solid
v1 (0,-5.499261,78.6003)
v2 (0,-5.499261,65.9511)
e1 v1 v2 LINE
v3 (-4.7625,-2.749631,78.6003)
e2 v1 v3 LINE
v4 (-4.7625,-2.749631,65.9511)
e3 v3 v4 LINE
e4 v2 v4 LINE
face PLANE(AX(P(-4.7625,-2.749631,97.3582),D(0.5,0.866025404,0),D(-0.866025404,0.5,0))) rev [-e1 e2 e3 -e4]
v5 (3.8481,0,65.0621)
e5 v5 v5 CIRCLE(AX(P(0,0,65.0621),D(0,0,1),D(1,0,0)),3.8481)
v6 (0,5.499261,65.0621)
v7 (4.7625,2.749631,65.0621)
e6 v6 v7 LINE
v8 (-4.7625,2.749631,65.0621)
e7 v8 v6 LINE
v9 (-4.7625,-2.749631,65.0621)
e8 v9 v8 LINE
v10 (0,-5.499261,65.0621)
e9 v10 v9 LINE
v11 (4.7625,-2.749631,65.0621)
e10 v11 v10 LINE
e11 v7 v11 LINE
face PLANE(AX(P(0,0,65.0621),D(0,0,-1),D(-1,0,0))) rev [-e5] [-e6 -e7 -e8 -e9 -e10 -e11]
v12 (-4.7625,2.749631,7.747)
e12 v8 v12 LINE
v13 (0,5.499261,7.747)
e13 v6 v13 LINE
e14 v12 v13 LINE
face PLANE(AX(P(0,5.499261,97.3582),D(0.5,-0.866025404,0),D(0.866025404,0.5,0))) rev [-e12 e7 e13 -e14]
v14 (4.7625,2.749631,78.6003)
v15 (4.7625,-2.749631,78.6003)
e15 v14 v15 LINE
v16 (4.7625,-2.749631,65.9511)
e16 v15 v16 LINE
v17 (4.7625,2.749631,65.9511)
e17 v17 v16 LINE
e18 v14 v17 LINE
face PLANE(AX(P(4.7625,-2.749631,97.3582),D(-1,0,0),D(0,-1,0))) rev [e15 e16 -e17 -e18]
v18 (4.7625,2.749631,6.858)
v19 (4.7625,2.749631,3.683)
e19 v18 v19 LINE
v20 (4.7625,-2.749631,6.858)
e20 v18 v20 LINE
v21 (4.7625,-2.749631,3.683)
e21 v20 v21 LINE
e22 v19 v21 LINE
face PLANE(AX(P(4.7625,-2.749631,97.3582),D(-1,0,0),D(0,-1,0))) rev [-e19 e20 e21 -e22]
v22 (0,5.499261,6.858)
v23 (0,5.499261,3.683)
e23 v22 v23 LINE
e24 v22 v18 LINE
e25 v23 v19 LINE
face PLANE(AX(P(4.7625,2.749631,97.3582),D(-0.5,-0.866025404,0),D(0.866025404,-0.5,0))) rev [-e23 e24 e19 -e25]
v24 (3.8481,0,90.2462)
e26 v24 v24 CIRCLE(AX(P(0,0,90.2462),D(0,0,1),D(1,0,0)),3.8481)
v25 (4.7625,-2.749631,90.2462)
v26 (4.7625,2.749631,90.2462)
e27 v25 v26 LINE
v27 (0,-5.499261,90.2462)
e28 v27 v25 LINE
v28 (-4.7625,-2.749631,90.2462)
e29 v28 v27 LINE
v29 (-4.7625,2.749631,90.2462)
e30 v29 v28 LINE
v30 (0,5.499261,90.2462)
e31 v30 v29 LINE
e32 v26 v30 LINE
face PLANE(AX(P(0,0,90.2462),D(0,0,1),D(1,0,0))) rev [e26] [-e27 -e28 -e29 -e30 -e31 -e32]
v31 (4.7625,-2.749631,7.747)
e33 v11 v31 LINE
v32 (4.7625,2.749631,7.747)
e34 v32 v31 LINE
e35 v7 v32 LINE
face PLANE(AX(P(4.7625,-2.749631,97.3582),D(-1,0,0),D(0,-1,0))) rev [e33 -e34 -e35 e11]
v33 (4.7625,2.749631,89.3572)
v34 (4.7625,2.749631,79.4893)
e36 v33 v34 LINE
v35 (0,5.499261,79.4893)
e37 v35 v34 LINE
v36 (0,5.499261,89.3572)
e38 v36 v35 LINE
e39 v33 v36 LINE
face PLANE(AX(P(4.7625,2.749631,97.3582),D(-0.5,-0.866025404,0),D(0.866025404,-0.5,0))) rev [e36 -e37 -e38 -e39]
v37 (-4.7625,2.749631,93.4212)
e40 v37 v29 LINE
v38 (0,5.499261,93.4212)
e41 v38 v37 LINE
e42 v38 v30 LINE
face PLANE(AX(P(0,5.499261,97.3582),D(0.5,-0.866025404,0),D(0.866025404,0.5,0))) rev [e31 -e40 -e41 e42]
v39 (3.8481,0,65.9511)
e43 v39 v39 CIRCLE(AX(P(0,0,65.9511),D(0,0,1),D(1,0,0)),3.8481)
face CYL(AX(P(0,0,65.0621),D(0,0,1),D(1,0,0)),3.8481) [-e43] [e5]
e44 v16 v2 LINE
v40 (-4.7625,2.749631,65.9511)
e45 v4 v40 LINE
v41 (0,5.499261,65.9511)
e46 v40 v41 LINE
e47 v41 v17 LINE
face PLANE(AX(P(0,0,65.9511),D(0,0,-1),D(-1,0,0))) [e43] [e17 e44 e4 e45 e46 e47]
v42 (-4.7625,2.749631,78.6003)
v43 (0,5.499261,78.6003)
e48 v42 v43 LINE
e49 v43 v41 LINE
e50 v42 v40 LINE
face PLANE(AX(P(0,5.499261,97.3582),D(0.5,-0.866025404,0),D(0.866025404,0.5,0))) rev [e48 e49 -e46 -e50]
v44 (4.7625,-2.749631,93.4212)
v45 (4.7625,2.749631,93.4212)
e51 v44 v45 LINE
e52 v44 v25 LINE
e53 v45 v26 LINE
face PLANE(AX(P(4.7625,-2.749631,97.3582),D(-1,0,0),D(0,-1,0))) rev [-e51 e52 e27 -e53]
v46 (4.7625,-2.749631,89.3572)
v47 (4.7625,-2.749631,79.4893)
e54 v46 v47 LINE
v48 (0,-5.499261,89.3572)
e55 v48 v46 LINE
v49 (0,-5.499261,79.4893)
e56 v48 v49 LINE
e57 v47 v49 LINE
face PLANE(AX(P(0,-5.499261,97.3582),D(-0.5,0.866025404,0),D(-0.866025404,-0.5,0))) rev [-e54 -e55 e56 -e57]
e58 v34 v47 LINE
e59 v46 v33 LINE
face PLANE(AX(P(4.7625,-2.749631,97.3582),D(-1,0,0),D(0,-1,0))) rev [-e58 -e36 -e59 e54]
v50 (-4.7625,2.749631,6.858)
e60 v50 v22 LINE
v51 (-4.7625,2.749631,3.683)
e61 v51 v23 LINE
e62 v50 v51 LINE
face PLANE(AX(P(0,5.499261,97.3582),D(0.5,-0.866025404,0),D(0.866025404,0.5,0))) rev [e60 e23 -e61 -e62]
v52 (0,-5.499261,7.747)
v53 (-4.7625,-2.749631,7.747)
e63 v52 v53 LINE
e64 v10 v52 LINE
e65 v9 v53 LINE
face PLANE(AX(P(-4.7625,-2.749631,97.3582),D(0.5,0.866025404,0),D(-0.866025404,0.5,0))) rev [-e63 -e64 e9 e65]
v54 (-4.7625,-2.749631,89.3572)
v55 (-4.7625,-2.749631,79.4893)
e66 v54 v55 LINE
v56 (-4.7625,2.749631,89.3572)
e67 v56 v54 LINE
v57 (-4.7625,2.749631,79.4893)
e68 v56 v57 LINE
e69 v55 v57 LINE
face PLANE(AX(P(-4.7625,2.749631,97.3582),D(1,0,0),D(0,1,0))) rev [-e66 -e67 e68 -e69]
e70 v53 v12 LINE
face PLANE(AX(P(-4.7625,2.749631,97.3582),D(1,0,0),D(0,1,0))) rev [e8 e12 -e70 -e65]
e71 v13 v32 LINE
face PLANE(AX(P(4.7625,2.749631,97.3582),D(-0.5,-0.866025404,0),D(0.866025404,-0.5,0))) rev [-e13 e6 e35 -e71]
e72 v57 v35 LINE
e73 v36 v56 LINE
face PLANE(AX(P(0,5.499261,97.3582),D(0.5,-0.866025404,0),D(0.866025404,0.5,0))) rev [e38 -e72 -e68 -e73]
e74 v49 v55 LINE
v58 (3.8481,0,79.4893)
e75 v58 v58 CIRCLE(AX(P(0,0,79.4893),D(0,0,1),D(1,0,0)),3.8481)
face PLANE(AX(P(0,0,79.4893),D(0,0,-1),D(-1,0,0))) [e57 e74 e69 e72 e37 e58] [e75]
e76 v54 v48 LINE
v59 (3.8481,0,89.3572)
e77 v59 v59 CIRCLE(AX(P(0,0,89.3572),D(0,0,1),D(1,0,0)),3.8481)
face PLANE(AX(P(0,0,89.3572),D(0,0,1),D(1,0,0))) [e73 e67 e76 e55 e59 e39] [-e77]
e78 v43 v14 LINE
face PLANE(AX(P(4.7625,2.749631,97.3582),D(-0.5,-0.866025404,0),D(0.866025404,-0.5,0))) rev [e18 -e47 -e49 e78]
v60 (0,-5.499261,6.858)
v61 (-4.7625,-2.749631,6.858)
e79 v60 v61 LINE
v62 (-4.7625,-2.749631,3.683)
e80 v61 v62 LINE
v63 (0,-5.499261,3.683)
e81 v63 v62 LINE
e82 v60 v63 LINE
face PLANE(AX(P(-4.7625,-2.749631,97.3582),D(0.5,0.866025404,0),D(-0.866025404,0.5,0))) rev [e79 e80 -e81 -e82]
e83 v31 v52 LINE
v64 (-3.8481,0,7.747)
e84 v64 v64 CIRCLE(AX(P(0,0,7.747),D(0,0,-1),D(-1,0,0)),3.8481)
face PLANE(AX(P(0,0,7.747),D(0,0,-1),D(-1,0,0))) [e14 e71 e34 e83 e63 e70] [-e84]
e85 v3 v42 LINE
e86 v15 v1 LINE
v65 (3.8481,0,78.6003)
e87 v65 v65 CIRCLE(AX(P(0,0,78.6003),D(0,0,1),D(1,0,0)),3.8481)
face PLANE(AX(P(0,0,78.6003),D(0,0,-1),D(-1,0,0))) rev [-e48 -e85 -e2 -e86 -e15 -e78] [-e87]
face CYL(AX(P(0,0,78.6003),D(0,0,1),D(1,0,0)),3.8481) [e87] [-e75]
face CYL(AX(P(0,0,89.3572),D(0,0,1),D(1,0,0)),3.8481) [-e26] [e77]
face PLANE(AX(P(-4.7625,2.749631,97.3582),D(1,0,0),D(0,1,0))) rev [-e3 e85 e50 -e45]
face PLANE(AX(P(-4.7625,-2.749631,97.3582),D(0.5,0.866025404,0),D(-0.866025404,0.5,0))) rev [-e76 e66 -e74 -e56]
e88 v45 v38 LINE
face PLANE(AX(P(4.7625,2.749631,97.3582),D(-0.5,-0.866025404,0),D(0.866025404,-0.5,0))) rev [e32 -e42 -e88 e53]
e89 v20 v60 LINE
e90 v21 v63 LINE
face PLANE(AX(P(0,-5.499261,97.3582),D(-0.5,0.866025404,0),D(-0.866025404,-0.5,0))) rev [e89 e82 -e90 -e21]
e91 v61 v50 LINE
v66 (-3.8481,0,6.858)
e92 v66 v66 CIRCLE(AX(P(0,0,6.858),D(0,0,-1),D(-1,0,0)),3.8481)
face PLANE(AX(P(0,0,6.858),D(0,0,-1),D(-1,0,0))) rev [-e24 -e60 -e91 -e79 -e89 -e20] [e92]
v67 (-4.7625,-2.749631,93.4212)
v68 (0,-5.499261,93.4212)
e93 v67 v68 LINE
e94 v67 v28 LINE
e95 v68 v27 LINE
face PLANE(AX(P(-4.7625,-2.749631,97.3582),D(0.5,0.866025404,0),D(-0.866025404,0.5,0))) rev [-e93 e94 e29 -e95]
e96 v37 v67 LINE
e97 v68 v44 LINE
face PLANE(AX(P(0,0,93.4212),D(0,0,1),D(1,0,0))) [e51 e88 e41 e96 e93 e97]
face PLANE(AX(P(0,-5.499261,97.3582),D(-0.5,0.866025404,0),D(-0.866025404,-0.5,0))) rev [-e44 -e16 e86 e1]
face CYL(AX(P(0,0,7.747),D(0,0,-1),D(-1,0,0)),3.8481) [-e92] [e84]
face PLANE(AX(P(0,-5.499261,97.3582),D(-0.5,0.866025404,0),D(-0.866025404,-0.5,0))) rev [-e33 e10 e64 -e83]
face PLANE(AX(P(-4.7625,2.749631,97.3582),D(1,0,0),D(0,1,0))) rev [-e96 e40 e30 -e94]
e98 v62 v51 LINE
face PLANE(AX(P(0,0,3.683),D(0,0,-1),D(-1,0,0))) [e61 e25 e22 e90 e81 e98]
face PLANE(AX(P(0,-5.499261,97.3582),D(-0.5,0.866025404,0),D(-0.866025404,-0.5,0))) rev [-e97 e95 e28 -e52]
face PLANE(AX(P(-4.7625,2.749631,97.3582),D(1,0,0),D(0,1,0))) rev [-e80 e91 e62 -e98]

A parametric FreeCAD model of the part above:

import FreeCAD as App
import Part
import Sketcher

V = App.Vector
Q = App.Units.Quantity


def add_polygon(sketch, points):
    """Adds a closed chain of lines whose ends are joined by coincident constraints."""
    first, n = sketch.GeometryCount, len(points)
    for a, b in zip(points, points[1:] + points[:1]):
        sketch.addGeometry(Part.LineSegment(App.Vector(*a, 0), App.Vector(*b, 0)), False)
    for i in range(n):
        sketch.addConstraint(Sketcher.Constraint("Coincident", first + i, 2, first + (i + 1) % n, 1))

doc = App.newDocument("Part")
body = doc.addObject("PartDesign::Body", "Body")

# Sketch on XY plane
sketch1 = body.newObject("Sketcher::SketchObject", "Sketch")
sketch1.AttachmentSupport = (doc.getObject("XY_Plane"), [""])
sketch1.MapMode = "FlatFace"
add_polygon(sketch1, [(0, 5.499261), (-4.7625, 2.749631), (-4.7625, -2.749631), (0, -5.499261), (4.7625, -2.749631), (4.7625, 2.749631)])  # lines 0-5
sketch1.addConstraint([
    Sketcher.Constraint("Vertical", 1),
    Sketcher.Constraint("Vertical", 4),
    Sketcher.Constraint("Symmetric", 0, 2, 3, 2, -1, 1),
    Sketcher.Constraint("Symmetric", 2, 2, 5, 2, -1, 1),
    Sketcher.Constraint("PointOnObject", 2, 2, -2),
    Sketcher.Constraint("Parallel", 2, 5),
    Sketcher.Constraint("Horizontal", 1, 2, 3, 2),
    Sketcher.Constraint("Angle", 0, Q("-150 deg")),
    Sketcher.Constraint("DistanceX", 0, 2, -1, 1, Q("0.1875 in")),
    Sketcher.Constraint("DistanceY", 1, 2, 1, 1, 5.499261),
])
pad1 = body.newObject("PartDesign::Pad", "Pad")
pad1.Profile = sketch1
pad1.Length = Q("3.833 in")

# Sketch on XY plane
sketch2 = body.newObject("Sketcher::SketchObject", "Sketch001")
sketch2.AttachmentSupport = (doc.getObject("XY_Plane"), [""])
sketch2.MapMode = "FlatFace"
sketch2.AttachmentOffset = App.Placement(V(0, 0, 3.112 * 25.4), App.Rotation())
add_polygon(sketch2, [(-5.929953, 5.978124), (-5.929953, -6.166928), (5.173499, -6.166928), (5.173499, 5.978124)])  # lines 0-3
sketch2.addGeometry(Part.Circle(V(0, 0, 0), V(0, 0, 1), 3.8481), False)  # 4
sketch2.addConstraint([
    Sketcher.Constraint("Vertical", 0),
    Sketcher.Constraint("Horizontal", 1),
    Sketcher.Constraint("Vertical", 2),
    Sketcher.Constraint("Horizontal", 3),
    Sketcher.Constraint("Coincident", 4, 3, -1, 1),
    Sketcher.Constraint("Diameter", 4, Q("0.303 in")),
    Sketcher.Constraint("DistanceX", -1, 1, 1, 2, 5.173499),
    Sketcher.Constraint("DistanceX", 1, 1, 1, 2, 11.103452),
    Sketcher.Constraint("DistanceY", 0, 2, 0, 1, 12.145052),
    Sketcher.Constraint("DistanceY", 0, 2, -1, 1, 6.166928),
])
pocket1 = body.newObject("PartDesign::Pocket", "Pocket")
pocket1.Profile = sketch2
pocket1.Length = Q("0.035 in")
pocket1.Midplane = True

# Sketch on XY plane
sketch3 = body.newObject("Sketcher::SketchObject", "Sketch002")
sketch3.AttachmentSupport = (doc.getObject("XY_Plane"), [""])
sketch3.MapMode = "FlatFace"
sketch3.AttachmentOffset = App.Placement(V(0, 0, 2.579 * 25.4), App.Rotation())
add_polygon(sketch3, [(-5.642015, 5.569475), (-5.642015, -5.940236), (5.110054, -5.940236), (5.110054, 5.569475)])  # lines 0-3
sketch3.addGeometry(Part.Circle(V(0, 0, 0), V(0, 0, 1), 3.8481), False)  # 4
sketch3.addConstraint([
    Sketcher.Constraint("Vertical", 0),
    Sketcher.Constraint("Horizontal", 1),
    Sketcher.Constraint("Vertical", 2),
    Sketcher.Constraint("Horizontal", 3),
    Sketcher.Constraint("Coincident", 4, 3, -1, 1),
    Sketcher.Constraint("Diameter", 4, Q("0.303 in")),
    Sketcher.Constraint("DistanceX", 1, 1, 1, 2, 10.752069),
    Sketcher.Constraint("DistanceY", 0, 2, 0, 1, 11.509711),
    Sketcher.Constraint("DistanceX", 0, 2, -1, 1, 5.642015),
    Sketcher.Constraint("DistanceY", 0, 2, -1, 1, 5.940236),
])
pocket2 = body.newObject("PartDesign::Pocket", "Pocket001")
pocket2.Profile = sketch3
pocket2.Length = Q("0.035 in")
pocket2.Midplane = True

# Sketch on XY plane
sketch4 = body.newObject("Sketcher::SketchObject", "Sketch003")
sketch4.AttachmentSupport = (doc.getObject("XY_Plane"), [""])
sketch4.MapMode = "FlatFace"
sketch4.AttachmentOffset = App.Placement(V(0, 0, 3.5355 * 25.4), App.Rotation())
add_polygon(sketch4, [(-6.355287, 6.466544), (-6.355287, -5.882741), (5.618514, -5.882741), (5.618514, 6.466544)])  # lines 0-3
sketch4.addGeometry(Part.Circle(V(0, 0, 0), V(0, 0, 1), 3.8481), False)  # 4
sketch4.addConstraint([
    Sketcher.Constraint("Vertical", 0),
    Sketcher.Constraint("Horizontal", 1),
    Sketcher.Constraint("Vertical", 2),
    Sketcher.Constraint("Horizontal", 3),
    Sketcher.Constraint("Coincident", 4, 3, -1, 1),
    Sketcher.Constraint("Diameter", 4, Q("0.303 in")),
    Sketcher.Constraint("DistanceX", 1, 1, 1, 2, 11.973801),
    Sketcher.Constraint("DistanceY", 0, 2, 0, 1, 12.349286),
    Sketcher.Constraint("DistanceY", 0, 2, -1, 1, 5.882741),
    Sketcher.Constraint("DistanceX", 0, 2, -1, 1, 6.355287),
])
pocket3 = body.newObject("PartDesign::Pocket", "Pocket002")
pocket3.Profile = sketch4
pocket3.Length = Q("0.035 in")
pocket3.Midplane = True

# Sketch on XY plane
sketch5 = body.newObject("Sketcher::SketchObject", "Sketch004")
sketch5.AttachmentSupport = (doc.getObject("XY_Plane"), [""])
sketch5.MapMode = "FlatFace"
sketch5.AttachmentOffset = App.Placement(V(0, 0, 0.2875 * 25.4), App.Rotation())
add_polygon(sketch5, [(6.759644, 5.706152), (6.759644, -5.777188), (-6.052958, -5.777188), (-6.052958, 5.706152)])  # lines 0-3
sketch5.addGeometry(Part.Circle(V(0, 0, 0), V(0, 0, 1), 3.8481), False)  # 4
sketch5.addConstraint([
    Sketcher.Constraint("Vertical", 0),
    Sketcher.Constraint("Horizontal", 1),
    Sketcher.Constraint("Vertical", 2),
    Sketcher.Constraint("Horizontal", 3),
    Sketcher.Constraint("Coincident", 4, 3, -1, 1),
    Sketcher.Constraint("Diameter", 4, Q("0.303 in")),
    Sketcher.Constraint("DistanceY", 0, 2, 0, 1, Q("0.4521 in")),
    Sketcher.Constraint("DistanceX", 1, 2, 1, 1, 12.812601),
    Sketcher.Constraint("DistanceY", 0, 2, -1, 1, 5.777188),
    Sketcher.Constraint("DistanceX", -1, 1, 0, 2, 6.759644),
])
pocket4 = body.newObject("PartDesign::Pocket", "Pocket003")
pocket4.Profile = sketch5
pocket4.Length = Q("0.035 in")
pocket4.Midplane = True

# Sketch on XY plane
sketch6 = body.newObject("Sketcher::SketchObject", "Sketch005")
sketch6.AttachmentSupport = (doc.getObject("XY_Plane"), [""])
sketch6.MapMode = "FlatFace"
add_polygon(sketch6, [(6.977405, 6.339151), (6.977405, -7.638414), (-8.297187, -7.638414), (-8.297187, 6.339151)])  # lines 0-3
sketch6.addConstraint([
    Sketcher.Constraint("Vertical", 0),
    Sketcher.Constraint("Horizontal", 1),
    Sketcher.Constraint("Vertical", 2),
    Sketcher.Constraint("Horizontal", 3),
    Sketcher.Constraint("DistanceX", 1, 2, 1, 1, 15.274592),
    Sketcher.Constraint("DistanceY", 0, 2, 0, 1, 13.977565),
    Sketcher.Constraint("DistanceY", -1, 1, 2, 2, 6.339151),
    Sketcher.Constraint("DistanceX", -1, 1, 0, 2, 6.977405),
])
pocket5 = body.newObject("PartDesign::Pocket", "Pocket004")
pocket5.Profile = sketch6
pocket5.Length = Q("0.145 in")
pocket5.Reversed = True

# Sketch on XY plane
sketch7 = body.newObject("Sketcher::SketchObject", "Sketch006")
sketch7.AttachmentSupport = (doc.getObject("XY_Plane"), [""])
sketch7.MapMode = "FlatFace"
sketch7.AttachmentOffset = App.Placement(V(0, 0, 3.833 * 25.4), App.Rotation())
add_polygon(sketch7, [(-8.972937, 7.470035), (-8.972937, -9.930817), (10.271881, -9.930817), (10.271881, 7.470035)])  # lines 0-3
sketch7.addConstraint([
    Sketcher.Constraint("Vertical", 0),
    Sketcher.Constraint("Horizontal", 1),
    Sketcher.Constraint("Vertical", 2),
    Sketcher.Constraint("Horizontal", 3),
    Sketcher.Constraint("DistanceX", 1, 1, 1, 2, 19.244818),
    Sketcher.Constraint("DistanceY", 0, 2, 0, 1, 17.400852),
    Sketcher.Constraint("DistanceX", -1, 1, 1, 2, 10.271881),
    Sketcher.Constraint("DistanceY", 0, 2, -1, 1, 9.930817),
])
pocket6 = body.newObject("PartDesign::Pocket", "Pocket005")
pocket6.Profile = sketch7
pocket6.Length = Q("0.155 in")

doc.recompute()
